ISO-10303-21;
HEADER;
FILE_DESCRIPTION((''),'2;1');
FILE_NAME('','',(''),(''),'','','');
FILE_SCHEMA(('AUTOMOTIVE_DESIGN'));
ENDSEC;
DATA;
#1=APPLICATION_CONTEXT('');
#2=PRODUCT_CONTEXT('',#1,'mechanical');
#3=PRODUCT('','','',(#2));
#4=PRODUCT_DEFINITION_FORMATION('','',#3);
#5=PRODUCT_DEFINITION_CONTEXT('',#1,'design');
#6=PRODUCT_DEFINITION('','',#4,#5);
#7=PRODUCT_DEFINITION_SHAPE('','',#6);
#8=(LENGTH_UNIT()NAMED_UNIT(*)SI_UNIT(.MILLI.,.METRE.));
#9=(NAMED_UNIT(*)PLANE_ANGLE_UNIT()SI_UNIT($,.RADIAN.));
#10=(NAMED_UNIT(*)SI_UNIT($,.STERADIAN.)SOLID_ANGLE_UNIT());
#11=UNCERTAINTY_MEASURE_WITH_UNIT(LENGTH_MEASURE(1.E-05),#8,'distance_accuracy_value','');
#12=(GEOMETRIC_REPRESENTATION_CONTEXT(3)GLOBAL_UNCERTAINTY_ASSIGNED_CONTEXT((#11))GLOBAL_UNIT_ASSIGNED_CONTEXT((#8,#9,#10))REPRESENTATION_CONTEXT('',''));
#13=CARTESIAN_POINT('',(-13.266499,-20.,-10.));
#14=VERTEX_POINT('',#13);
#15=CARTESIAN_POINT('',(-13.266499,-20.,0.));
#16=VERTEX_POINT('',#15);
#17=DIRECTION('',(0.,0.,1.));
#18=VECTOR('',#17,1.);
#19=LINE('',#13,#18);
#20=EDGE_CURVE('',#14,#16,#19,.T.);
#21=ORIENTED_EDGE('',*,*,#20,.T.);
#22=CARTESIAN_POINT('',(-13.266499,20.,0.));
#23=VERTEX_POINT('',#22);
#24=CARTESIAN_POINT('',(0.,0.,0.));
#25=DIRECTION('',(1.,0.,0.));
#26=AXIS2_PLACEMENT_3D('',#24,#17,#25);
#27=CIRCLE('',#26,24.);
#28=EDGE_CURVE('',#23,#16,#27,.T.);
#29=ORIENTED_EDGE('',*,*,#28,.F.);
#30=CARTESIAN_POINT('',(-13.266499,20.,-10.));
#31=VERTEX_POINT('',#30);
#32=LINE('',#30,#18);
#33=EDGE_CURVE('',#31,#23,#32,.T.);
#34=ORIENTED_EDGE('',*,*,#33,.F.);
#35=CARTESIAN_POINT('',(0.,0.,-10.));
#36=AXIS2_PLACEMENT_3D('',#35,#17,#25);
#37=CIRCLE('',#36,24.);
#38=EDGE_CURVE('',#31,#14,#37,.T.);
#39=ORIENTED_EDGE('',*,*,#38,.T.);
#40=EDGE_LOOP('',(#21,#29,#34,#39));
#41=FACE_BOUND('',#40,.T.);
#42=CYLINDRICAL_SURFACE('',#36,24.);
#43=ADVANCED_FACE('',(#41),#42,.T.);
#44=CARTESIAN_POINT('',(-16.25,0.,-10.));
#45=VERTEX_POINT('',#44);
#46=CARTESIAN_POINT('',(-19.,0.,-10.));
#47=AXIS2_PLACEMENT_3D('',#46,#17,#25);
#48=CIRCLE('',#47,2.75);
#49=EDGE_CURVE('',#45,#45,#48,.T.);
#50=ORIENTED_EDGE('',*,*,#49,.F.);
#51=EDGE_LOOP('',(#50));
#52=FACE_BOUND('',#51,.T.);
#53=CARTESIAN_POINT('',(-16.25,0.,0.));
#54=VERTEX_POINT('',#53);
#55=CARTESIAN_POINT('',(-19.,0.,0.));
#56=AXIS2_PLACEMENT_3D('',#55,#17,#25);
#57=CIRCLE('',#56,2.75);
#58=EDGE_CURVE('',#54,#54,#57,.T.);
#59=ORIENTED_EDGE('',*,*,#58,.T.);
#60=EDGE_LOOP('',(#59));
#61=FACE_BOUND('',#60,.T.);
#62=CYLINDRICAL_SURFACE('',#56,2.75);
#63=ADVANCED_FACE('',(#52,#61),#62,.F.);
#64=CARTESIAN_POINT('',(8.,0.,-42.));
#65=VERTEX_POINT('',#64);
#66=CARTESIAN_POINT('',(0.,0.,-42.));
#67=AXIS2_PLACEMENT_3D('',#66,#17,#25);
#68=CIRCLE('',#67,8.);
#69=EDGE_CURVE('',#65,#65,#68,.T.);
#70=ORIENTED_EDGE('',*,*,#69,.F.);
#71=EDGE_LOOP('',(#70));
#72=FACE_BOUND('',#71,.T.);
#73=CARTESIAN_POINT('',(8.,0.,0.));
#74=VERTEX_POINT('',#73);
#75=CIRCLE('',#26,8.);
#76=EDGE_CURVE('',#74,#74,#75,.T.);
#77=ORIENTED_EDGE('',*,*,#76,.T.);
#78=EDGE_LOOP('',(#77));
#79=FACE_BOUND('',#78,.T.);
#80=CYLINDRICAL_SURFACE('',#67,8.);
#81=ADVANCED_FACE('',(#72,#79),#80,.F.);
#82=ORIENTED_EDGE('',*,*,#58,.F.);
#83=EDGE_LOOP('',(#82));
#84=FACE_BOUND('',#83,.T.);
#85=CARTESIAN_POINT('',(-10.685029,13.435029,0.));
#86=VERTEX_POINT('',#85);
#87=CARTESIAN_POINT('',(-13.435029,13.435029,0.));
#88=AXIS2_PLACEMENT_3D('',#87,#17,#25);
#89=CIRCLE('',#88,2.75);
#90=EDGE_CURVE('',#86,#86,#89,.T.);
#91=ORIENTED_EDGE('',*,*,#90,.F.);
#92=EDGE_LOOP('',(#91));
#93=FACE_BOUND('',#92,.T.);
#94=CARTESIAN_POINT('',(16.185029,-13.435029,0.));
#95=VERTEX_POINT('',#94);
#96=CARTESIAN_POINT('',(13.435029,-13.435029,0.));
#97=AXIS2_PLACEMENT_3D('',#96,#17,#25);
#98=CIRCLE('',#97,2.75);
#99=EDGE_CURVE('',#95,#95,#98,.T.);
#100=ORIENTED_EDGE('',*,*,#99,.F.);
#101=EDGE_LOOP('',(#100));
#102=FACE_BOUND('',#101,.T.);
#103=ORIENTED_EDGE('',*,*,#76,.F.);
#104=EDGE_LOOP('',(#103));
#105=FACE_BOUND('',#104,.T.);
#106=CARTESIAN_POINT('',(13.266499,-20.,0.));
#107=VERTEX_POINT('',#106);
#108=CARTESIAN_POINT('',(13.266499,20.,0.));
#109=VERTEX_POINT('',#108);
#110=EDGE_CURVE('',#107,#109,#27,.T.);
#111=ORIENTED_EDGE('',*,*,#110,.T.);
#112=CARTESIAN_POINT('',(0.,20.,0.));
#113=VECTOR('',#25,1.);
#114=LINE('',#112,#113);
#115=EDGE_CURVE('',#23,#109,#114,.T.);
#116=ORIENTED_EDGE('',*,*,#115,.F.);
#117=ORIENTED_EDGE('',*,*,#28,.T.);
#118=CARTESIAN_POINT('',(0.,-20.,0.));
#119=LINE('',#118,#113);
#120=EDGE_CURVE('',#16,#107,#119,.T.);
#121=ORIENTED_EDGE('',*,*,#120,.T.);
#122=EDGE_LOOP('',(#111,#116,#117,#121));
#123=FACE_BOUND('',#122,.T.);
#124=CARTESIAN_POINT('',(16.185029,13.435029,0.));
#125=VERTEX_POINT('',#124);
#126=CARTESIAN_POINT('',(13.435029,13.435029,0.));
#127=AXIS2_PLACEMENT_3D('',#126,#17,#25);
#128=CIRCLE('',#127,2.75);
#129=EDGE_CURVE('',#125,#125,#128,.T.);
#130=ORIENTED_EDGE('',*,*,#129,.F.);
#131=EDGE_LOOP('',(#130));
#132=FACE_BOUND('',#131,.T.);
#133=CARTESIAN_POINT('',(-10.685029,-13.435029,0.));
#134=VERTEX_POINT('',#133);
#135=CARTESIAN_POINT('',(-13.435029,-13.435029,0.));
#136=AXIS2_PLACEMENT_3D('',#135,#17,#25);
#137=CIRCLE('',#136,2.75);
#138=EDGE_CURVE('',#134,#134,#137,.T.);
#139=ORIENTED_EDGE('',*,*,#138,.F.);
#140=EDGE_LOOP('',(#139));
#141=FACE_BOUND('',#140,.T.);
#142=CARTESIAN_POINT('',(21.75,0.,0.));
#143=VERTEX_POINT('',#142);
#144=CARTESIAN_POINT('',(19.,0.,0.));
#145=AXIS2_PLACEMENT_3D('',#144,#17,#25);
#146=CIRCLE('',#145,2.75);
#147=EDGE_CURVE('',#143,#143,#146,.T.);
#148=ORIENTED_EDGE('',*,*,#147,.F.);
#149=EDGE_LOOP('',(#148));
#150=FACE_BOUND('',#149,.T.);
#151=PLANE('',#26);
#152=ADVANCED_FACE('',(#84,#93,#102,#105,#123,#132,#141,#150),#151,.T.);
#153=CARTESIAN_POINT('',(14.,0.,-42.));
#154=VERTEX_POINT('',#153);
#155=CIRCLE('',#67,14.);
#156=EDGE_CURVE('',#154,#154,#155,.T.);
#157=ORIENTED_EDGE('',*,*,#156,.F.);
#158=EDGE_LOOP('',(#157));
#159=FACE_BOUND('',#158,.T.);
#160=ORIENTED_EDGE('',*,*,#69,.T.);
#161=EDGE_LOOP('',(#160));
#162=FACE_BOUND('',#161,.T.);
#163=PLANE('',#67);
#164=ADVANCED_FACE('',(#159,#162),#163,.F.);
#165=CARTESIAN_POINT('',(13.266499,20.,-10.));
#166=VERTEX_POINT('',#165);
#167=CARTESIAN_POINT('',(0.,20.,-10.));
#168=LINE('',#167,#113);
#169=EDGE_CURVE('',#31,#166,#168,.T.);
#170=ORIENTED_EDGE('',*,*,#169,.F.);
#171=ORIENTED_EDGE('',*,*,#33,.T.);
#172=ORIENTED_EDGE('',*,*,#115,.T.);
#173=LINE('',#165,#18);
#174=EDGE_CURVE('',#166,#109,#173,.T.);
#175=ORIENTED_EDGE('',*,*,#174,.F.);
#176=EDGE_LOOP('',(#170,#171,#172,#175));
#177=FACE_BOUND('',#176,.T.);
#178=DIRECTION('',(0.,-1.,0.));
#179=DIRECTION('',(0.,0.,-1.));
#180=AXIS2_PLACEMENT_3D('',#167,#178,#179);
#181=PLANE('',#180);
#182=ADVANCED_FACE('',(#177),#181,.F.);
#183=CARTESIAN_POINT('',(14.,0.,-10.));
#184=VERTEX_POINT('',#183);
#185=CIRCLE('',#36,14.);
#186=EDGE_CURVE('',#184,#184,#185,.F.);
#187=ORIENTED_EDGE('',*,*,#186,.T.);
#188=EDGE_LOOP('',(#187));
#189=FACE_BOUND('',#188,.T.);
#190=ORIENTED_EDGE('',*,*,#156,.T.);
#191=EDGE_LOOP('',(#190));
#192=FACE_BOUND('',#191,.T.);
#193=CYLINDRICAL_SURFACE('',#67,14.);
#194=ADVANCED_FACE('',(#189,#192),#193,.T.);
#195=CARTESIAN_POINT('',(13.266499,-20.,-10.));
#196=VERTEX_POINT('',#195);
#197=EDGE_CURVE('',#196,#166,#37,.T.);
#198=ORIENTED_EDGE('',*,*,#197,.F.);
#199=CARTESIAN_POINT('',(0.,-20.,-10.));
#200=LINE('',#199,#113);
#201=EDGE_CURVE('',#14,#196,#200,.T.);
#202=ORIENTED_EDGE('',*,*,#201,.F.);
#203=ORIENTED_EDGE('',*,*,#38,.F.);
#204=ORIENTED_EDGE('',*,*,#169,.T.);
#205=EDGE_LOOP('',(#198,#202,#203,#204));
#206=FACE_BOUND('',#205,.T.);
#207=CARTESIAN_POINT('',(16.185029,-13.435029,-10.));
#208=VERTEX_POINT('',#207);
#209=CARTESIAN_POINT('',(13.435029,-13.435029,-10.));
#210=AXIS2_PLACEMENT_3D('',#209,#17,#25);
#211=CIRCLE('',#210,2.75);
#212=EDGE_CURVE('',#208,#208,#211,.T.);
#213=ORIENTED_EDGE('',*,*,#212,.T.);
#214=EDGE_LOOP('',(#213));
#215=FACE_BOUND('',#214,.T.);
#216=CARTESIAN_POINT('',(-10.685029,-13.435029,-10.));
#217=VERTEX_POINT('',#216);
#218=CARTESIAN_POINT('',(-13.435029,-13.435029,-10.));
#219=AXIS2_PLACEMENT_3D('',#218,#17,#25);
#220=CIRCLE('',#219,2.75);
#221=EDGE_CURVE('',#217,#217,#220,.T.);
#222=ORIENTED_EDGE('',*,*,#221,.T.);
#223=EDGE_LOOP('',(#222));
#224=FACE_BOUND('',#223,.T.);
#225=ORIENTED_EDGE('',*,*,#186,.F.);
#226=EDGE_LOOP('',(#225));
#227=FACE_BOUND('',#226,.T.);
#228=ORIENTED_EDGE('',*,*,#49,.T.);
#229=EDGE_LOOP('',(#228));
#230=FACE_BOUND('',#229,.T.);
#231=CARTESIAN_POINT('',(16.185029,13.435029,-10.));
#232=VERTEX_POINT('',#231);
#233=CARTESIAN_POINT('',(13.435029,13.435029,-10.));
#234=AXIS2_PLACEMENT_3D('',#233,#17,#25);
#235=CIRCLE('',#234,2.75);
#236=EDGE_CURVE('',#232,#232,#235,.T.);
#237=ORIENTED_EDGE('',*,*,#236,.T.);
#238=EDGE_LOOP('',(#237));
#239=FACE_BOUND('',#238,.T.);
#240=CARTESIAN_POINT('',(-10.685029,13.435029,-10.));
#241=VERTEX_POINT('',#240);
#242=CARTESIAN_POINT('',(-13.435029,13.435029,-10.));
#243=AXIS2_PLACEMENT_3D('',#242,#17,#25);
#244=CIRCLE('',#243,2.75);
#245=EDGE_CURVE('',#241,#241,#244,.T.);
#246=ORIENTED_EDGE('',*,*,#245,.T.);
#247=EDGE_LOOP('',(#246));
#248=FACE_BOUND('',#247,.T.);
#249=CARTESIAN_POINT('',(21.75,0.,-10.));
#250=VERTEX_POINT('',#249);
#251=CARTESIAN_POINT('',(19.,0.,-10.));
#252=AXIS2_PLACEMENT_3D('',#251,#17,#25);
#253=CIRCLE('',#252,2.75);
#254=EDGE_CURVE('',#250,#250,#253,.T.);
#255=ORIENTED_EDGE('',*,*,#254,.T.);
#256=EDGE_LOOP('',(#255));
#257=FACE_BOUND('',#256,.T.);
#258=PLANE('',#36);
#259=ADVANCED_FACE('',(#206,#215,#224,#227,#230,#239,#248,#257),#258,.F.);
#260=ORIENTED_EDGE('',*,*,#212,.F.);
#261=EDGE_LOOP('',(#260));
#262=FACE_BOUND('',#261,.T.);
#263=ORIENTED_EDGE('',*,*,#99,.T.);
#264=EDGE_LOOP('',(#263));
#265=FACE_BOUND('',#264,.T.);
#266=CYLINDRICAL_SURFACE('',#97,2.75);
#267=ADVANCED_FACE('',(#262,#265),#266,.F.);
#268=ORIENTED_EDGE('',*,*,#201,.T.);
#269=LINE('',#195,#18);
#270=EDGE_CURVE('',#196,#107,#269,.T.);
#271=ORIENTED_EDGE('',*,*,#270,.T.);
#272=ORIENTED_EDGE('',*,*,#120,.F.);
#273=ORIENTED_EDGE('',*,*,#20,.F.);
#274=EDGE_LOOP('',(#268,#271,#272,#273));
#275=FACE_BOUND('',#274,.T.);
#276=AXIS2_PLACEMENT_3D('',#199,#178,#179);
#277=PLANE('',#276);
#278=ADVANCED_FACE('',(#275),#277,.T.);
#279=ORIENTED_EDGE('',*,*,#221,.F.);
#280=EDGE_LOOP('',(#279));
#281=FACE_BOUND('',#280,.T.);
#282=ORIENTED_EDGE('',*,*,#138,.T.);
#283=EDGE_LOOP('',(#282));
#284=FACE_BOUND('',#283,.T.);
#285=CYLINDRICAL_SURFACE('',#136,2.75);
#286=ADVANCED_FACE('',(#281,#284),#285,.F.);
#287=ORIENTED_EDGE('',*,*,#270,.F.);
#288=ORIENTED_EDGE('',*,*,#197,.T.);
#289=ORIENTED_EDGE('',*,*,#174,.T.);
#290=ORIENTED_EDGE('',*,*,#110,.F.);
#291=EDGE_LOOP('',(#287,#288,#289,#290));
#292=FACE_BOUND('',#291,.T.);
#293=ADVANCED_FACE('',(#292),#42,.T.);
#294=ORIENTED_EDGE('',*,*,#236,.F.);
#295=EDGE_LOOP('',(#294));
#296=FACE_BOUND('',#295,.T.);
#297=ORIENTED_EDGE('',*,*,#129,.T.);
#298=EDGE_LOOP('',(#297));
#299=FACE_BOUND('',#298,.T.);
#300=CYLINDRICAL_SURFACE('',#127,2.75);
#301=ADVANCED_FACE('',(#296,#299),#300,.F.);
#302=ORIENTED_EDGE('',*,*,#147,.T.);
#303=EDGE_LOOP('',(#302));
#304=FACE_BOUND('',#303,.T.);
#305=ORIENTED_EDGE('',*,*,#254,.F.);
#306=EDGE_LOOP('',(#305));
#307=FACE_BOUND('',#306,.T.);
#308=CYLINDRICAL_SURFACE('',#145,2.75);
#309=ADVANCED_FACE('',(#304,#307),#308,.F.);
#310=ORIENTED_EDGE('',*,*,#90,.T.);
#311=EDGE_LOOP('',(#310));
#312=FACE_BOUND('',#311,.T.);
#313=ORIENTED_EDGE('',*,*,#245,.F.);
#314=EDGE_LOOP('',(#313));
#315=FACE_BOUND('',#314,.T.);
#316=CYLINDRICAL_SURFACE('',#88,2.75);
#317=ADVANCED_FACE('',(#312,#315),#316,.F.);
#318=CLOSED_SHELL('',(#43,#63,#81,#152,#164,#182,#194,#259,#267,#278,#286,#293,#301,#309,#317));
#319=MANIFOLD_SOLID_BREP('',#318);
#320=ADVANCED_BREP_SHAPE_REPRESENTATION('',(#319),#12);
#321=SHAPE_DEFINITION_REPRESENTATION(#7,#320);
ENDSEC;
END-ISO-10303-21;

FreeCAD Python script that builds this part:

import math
import FreeCAD as App
import Part
import Sketcher
from FreeCAD import Vector
Q = App.Units.Quantity

doc = App.newDocument("Part")
body = doc.addObject("PartDesign::Body", "Body")

sketch1 = doc.addObject("Sketcher::SketchObject", "Sketch")
body.addObject(sketch1)
sketch1.AttachmentSupport = (doc.XY_Plane, [""])
sketch1.MapMode = "FlatFace"
sketch1.addGeometry(Part.Circle(Vector(0, 0, 0), Vector(0, 0, 1), 14), False)
sketch1.addGeometry(Part.Circle(Vector(0, 0, 0), Vector(0, 0, 1), 8), False)
sketch1.addConstraint(Sketcher.Constraint("Coincident", 0, 3, -1, 1))
sketch1.addConstraint(Sketcher.Constraint("Coincident", 1, 3, -1, 1))
sketch1.addConstraint(Sketcher.Constraint("Diameter", 0, Q("28 mm")))
sketch1.addConstraint(Sketcher.Constraint("Diameter", 1, Q("16 mm")))
pad1 = doc.addObject("PartDesign::Pad", "Pad")
body.addObject(pad1)
pad1.Profile = sketch1
pad1.Length = 42
pad1.Reversed = True

sketch2 = doc.addObject("Sketcher::SketchObject", "Sketch001")
body.addObject(sketch2)
sketch2.AttachmentSupport = (doc.XY_Plane, [""])
sketch2.MapMode = "FlatFace"
sketch2.addGeometry(Part.LineSegment(Vector(13, 20, 0), Vector(-13, 20, 0)), False)
sketch2.addGeometry(Part.ArcOfCircle(Part.Circle(Vector(0, 0, 0), Vector(0, 0, 1), 24), math.radians(124), math.radians(236)), False)
sketch2.addGeometry(Part.LineSegment(Vector(-13, -20, 0), Vector(13, -20, 0)), False)
sketch2.addGeometry(Part.ArcOfCircle(Part.Circle(Vector(0, 0, 0), Vector(0, 0, 1), 24), math.radians(-56), math.radians(0)), False)
sketch2.addGeometry(Part.ArcOfCircle(Part.Circle(Vector(0, 0, 0), Vector(0, 0, 1), 24), math.radians(0), math.radians(56)), False)
sketch2.addGeometry(Part.Circle(Vector(0, 0, 0), Vector(0, 0, 1), 8), False)
sketch2.addConstraint(Sketcher.Constraint("Coincident", 0, 2, 1, 1))
sketch2.addConstraint(Sketcher.Constraint("Coincident", 1, 2, 2, 1))
sketch2.addConstraint(Sketcher.Constraint("Coincident", 2, 2, 3, 1))
sketch2.addConstraint(Sketcher.Constraint("Tangent", 3, 2, 4, 1))
sketch2.addConstraint(Sketcher.Constraint("Coincident", 4, 2, 0, 1))
sketch2.addConstraint(Sketcher.Constraint("Horizontal", 0))
sketch2.addConstraint(Sketcher.Constraint("Horizontal", 2))
sketch2.addConstraint(Sketcher.Constraint("Coincident", 1, 3, -1, 1))
sketch2.addConstraint(Sketcher.Constraint("Coincident", 3, 3, -1, 1))
sketch2.addConstraint(Sketcher.Constraint("Coincident", 5, 3, -1, 1))
sketch2.addConstraint(Sketcher.Constraint("Equal", 1, 3))
sketch2.addConstraint(Sketcher.Constraint("Equal", 3, 4))
sketch2.addConstraint(Sketcher.Constraint("PointOnObject", 3, 2, -1))
sketch2.addConstraint(Sketcher.Constraint("Vertical", 0, 2, 1, 2))
sketch2.addConstraint(Sketcher.Constraint("Diameter", 5, Q("16 mm")))
sketch2.addConstraint(Sketcher.Constraint("Radius", 1, Q("24 mm")))
sketch2.addConstraint(Sketcher.Constraint("DistanceY", -1, 1, 0, 2, Q("20 mm")))
pad2 = doc.addObject("PartDesign::Pad", "Pad001")
body.addObject(pad2)
pad2.Profile = sketch2
pad2.Length = 10
pad2.Reversed = True

sketch3 = doc.addObject("Sketcher::SketchObject", "Sketch002")
body.addObject(sketch3)
sketch3.AttachmentSupport = (doc.XY_Plane, [""])
sketch3.MapMode = "FlatFace"
sketch3.addGeometry(Part.Circle(Vector(-19, 0, 0), Vector(0, 0, 1), 2.8), False)
sketch3.addGeometry(Part.Circle(Vector(-13.4, 13.4, 0), Vector(0, 0, 1), 2.8), False)
sketch3.addGeometry(Part.Circle(Vector(13.4, -13.4, 0), Vector(0, 0, 1), 2.8), False)
sketch3.addGeometry(Part.Circle(Vector(0, 0, 0), Vector(0, 0, 1), 2.8), False)
sketch3.addGeometry(Part.Circle(Vector(13.4, 13.4, 0), Vector(0, 0, 1), 2.8), False)
sketch3.addGeometry(Part.Circle(Vector(-13.4, -13.4, 0), Vector(0, 0, 1), 2.8), False)
sketch3.addGeometry(Part.Circle(Vector(19, 0, 0), Vector(0, 0, 1), 2.8), False)
sketch3.addConstraint(Sketcher.Constraint("Coincident", 3, 3, -1, 1))
sketch3.addConstraint(Sketcher.Constraint("Equal", 0, 1))
sketch3.addConstraint(Sketcher.Constraint("Equal", 1, 2))
sketch3.addConstraint(Sketcher.Constraint("Equal", 2, 3))
sketch3.addConstraint(Sketcher.Constraint("Equal", 3, 4))
sketch3.addConstraint(Sketcher.Constraint("Equal", 4, 5))
sketch3.addConstraint(Sketcher.Constraint("Equal", 5, 6))
sketch3.addConstraint(Sketcher.Constraint("Symmetric", 1, 3, 2, 3, -1, 1))
sketch3.addConstraint(Sketcher.Constraint("Symmetric", 4, 3, 5, 3, -1, 1))
sketch3.addConstraint(Sketcher.Constraint("Symmetric", 0, 3, 6, 3, -1, 1))
sketch3.addConstraint(Sketcher.Constraint("Symmetric", 1, 3, 4, 3, -2))
sketch3.addConstraint(Sketcher.Constraint("PointOnObject", 0, 3, -1))
sketch3.addConstraint(Sketcher.Constraint("Diameter", 0, Q("5.5 mm")))
sketch3.addConstraint(Sketcher.Constraint("DistanceX", 0, 3, -1, 1, Q("19 mm")))
sketch3.addConstraint(Sketcher.Constraint("DistanceX", 1, 3, -1, 1, Q("13.435029 mm")))
sketch3.addConstraint(Sketcher.Constraint("DistanceY", -1, 1, 1, 3, Q("13.435029 mm")))
doc.recompute()
hole = doc.addObject("PartDesign::Hole", "Hole")
body.addObject(hole)
hole.Profile = sketch3
hole.ThreadType = "None"
hole.Diameter = 5.5
hole.DepthType = "ThroughAll"

doc.recompute()
